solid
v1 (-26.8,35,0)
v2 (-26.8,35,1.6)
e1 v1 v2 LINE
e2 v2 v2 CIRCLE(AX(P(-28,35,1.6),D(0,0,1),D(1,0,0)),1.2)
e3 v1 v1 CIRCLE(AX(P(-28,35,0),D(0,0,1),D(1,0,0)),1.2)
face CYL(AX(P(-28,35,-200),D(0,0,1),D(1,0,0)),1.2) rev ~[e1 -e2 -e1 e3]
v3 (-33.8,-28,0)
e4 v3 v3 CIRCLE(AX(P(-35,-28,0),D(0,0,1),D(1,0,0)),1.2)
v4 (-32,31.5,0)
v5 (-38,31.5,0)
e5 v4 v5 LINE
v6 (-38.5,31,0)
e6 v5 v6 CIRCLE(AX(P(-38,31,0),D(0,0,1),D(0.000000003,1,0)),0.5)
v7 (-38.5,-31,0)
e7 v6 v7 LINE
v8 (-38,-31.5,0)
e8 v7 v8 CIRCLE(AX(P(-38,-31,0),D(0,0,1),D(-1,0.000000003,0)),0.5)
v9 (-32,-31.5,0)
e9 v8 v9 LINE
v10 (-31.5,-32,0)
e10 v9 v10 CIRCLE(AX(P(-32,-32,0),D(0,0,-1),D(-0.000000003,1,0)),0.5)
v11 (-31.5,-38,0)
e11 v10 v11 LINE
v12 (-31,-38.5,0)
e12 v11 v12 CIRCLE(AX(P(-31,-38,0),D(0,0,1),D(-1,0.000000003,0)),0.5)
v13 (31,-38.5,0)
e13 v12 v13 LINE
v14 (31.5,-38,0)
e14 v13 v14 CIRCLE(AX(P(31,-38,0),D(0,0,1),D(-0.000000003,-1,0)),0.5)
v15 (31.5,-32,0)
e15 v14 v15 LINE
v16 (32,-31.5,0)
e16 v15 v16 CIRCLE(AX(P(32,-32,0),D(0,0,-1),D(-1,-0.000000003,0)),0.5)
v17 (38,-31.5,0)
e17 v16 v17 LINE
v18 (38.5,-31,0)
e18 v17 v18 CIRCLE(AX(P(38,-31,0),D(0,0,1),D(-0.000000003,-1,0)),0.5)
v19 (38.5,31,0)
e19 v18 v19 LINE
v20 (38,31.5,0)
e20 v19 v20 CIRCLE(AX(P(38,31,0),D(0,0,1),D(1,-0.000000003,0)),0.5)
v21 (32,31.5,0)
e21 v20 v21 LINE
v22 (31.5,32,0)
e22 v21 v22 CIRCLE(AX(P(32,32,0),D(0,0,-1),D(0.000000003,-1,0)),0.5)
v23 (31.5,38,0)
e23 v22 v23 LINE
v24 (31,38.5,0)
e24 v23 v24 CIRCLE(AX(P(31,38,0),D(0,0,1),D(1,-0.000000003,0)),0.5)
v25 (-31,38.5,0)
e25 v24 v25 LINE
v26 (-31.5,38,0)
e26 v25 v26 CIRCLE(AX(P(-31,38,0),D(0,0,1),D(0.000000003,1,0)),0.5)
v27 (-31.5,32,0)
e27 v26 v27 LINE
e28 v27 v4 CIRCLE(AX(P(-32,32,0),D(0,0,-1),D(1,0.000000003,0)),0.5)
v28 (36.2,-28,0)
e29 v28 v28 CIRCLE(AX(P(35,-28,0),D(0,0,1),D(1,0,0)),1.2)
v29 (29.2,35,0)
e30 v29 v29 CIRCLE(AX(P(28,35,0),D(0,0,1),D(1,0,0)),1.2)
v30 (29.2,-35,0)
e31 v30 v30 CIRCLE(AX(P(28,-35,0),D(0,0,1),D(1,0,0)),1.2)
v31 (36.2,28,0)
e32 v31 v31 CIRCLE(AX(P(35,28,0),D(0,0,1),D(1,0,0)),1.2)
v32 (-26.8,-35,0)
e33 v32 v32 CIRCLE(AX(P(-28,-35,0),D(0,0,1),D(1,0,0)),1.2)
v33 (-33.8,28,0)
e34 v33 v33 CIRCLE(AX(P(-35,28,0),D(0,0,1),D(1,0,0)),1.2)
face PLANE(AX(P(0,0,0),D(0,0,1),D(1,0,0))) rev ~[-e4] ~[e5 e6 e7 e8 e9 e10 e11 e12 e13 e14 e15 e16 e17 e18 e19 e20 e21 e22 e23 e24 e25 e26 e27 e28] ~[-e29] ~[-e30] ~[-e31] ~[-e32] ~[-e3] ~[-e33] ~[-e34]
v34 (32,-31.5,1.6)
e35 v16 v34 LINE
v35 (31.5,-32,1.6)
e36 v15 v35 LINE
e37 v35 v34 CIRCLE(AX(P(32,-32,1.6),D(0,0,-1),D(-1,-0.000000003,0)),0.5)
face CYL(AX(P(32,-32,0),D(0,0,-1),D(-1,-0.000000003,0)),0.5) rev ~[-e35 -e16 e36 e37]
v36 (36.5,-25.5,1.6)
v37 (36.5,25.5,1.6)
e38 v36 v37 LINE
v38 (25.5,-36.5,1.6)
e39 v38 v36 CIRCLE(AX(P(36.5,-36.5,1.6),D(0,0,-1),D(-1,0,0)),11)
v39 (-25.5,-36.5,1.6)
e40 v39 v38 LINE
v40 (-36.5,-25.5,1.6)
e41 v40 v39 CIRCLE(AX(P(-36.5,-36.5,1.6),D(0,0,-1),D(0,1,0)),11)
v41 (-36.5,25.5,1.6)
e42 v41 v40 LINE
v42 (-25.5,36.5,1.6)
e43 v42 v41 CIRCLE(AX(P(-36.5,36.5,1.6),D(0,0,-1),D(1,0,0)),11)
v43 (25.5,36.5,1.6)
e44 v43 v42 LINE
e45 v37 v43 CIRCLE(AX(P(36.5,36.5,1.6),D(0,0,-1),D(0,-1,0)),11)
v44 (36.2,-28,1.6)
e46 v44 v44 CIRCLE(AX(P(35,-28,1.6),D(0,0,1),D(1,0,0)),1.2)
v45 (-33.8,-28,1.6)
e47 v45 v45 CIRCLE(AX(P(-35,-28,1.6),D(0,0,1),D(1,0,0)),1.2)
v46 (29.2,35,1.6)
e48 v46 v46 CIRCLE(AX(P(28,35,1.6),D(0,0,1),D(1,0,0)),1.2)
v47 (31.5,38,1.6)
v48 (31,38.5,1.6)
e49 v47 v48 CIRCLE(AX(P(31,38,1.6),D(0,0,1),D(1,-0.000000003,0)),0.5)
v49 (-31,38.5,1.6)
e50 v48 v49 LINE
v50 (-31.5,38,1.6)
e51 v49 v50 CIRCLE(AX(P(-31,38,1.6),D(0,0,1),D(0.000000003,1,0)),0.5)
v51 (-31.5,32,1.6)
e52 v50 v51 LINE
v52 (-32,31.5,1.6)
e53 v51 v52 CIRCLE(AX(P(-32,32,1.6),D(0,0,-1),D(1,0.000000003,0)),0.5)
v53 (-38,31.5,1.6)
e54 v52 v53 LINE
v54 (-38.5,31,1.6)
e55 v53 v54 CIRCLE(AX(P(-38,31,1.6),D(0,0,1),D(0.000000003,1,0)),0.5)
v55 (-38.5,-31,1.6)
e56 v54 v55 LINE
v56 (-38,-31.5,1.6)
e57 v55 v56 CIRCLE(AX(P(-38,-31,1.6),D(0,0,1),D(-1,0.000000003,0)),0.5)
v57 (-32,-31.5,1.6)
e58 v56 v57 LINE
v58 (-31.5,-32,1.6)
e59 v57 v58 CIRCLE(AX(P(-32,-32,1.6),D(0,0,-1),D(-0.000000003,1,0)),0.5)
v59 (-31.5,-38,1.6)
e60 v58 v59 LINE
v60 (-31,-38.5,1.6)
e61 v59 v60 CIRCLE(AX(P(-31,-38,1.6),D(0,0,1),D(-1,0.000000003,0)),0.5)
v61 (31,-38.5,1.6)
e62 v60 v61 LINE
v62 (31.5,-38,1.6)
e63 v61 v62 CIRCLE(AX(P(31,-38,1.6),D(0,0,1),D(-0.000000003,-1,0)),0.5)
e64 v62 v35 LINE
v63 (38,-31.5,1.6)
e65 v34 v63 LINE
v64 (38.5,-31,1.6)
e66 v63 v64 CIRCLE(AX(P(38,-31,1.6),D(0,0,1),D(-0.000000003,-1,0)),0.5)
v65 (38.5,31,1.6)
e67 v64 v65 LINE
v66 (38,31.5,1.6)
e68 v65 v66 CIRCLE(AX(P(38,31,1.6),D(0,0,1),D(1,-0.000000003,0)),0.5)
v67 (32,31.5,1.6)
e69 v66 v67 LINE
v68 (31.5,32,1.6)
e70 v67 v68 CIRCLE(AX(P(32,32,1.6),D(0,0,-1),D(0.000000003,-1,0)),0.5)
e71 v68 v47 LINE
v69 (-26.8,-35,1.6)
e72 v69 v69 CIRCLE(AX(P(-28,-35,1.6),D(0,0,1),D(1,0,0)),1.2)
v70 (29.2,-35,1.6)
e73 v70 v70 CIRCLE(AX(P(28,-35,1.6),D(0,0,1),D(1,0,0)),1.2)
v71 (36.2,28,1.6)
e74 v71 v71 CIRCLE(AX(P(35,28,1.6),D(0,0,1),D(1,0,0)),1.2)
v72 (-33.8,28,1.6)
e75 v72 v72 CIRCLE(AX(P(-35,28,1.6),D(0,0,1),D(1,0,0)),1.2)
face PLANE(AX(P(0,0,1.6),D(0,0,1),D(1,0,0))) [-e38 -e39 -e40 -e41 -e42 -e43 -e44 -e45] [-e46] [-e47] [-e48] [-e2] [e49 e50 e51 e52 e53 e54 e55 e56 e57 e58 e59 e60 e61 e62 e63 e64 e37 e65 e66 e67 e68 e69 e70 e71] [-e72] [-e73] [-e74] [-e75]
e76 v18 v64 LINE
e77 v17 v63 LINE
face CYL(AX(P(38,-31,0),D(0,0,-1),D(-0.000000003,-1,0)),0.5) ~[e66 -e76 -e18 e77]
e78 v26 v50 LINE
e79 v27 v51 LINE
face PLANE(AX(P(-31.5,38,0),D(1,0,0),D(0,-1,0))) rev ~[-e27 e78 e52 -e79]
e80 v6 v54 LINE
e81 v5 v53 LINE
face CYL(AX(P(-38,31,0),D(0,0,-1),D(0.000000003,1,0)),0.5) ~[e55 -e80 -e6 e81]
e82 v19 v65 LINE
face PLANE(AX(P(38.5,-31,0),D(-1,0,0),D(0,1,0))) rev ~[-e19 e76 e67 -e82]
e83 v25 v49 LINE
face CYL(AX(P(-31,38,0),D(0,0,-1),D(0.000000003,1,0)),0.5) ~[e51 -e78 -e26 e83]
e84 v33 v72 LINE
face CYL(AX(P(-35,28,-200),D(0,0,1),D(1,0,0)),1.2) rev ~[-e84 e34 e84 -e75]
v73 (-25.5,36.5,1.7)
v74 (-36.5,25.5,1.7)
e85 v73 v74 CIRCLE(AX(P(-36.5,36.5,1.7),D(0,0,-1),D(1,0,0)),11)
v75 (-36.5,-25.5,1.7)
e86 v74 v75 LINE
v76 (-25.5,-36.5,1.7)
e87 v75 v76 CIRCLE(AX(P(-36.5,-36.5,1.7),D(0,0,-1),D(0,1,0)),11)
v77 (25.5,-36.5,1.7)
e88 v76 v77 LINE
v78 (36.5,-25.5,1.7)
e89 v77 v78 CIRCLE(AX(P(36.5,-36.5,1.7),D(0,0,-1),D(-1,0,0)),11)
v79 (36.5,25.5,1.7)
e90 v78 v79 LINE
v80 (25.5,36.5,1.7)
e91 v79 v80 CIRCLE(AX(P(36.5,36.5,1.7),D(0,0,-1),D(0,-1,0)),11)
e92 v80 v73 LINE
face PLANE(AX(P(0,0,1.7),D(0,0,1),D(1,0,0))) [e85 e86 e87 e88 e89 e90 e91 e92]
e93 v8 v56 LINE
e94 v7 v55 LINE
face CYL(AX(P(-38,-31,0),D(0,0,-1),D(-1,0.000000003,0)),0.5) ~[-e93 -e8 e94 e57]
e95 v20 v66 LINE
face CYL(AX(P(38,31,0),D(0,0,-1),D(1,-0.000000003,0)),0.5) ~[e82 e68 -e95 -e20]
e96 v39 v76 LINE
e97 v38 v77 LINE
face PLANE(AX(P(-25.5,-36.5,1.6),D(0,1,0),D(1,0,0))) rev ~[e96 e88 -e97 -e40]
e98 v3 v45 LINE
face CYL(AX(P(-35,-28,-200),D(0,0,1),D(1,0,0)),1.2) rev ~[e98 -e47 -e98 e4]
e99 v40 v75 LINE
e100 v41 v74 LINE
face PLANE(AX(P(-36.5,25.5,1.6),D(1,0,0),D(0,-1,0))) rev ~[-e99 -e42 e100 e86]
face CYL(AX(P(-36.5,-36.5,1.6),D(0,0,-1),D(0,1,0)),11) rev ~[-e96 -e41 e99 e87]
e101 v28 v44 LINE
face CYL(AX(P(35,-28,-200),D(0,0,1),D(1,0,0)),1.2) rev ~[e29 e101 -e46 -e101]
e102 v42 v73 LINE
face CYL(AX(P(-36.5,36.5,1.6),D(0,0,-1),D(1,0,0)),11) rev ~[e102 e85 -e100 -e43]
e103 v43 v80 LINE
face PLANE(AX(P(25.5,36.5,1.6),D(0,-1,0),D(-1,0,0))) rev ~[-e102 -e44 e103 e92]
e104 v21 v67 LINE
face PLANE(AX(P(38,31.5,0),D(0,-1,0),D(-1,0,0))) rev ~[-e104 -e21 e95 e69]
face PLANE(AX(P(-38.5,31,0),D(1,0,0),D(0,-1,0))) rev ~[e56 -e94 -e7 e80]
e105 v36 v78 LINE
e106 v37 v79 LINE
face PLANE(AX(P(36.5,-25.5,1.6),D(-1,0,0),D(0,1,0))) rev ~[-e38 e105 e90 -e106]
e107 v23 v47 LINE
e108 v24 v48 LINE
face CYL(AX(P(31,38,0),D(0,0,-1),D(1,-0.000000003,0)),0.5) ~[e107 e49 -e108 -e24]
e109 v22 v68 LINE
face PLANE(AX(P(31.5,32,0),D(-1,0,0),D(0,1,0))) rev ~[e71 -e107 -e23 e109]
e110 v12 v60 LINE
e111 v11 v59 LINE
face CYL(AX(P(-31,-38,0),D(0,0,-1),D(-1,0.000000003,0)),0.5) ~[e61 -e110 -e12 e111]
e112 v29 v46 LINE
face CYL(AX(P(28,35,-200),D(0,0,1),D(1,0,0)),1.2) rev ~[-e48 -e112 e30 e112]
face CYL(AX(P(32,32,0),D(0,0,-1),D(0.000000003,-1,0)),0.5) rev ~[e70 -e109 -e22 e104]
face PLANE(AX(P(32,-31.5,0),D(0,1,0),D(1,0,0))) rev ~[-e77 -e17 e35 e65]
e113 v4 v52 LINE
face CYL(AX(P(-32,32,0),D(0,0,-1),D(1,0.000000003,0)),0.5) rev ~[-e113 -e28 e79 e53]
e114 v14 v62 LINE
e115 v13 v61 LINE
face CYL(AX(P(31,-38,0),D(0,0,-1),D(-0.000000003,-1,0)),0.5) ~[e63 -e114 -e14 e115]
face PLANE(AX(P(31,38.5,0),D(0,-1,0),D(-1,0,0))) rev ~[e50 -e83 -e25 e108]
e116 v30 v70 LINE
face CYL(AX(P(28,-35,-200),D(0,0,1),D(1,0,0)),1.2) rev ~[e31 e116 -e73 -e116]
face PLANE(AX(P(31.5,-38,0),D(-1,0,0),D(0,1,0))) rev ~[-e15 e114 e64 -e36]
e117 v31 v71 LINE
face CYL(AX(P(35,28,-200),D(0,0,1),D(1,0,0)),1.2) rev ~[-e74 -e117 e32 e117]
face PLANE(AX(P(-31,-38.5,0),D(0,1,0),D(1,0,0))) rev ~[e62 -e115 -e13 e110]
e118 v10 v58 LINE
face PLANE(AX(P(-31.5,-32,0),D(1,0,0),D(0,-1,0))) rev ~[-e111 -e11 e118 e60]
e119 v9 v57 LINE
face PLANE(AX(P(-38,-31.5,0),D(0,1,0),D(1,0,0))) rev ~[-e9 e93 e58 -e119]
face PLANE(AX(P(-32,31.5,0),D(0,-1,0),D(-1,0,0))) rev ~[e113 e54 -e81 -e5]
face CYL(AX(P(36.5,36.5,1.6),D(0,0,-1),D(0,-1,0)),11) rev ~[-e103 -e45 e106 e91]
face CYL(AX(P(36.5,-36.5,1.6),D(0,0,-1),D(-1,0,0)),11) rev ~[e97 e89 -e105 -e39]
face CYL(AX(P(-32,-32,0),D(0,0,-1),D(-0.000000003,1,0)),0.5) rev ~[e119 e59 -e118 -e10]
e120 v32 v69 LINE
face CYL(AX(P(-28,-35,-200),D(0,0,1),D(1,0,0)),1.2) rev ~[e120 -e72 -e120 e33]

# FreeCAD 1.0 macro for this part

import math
import FreeCAD as App
import Part
import Sketcher

doc = App.newDocument("Part")
body = doc.addObject("PartDesign::Body", "Body")

# Sketch on XY plane
sketch1 = body.newObject("Sketcher::SketchObject", "Sketch")
sketch1.AttachmentSupport = (doc.getObject("XY_Plane"), [""])
sketch1.MapMode = "FlatFace"
sketch1.addGeometry(Part.LineSegment(App.Vector(-31.5, 38, 0), App.Vector(-31.5, 32, 0)), False)
sketch1.addGeometry(Part.ArcOfCircle(Part.Circle(App.Vector(-32, 32, 0), App.Vector(0, 0, 1), 0.5), math.radians(-90), math.radians(0)), False)
sketch1.addGeometry(Part.LineSegment(App.Vector(-32, 31.5, 0), App.Vector(-38, 31.5, 0)), False)
sketch1.addGeometry(Part.ArcOfCircle(Part.Circle(App.Vector(-38, 31, 0), App.Vector(0, 0, 1), 0.5), math.radians(90), math.radians(180)), False)
sketch1.addGeometry(Part.LineSegment(App.Vector(-38.5, 31, 0), App.Vector(-38.5, -31, 0)), False)
sketch1.addGeometry(Part.ArcOfCircle(Part.Circle(App.Vector(-38, -31, 0), App.Vector(0, 0, 1), 0.5), math.radians(180), math.radians(270)), False)
sketch1.addGeometry(Part.LineSegment(App.Vector(-38, -31.5, 0), App.Vector(-32, -31.5, 0)), False)
sketch1.addGeometry(Part.ArcOfCircle(Part.Circle(App.Vector(-32, -32, 0), App.Vector(0, 0, 1), 0.5), math.radians(0), math.radians(90)), False)
sketch1.addGeometry(Part.LineSegment(App.Vector(-31.5, -32, 0), App.Vector(-31.5, -38, 0)), False)
sketch1.addGeometry(Part.ArcOfCircle(Part.Circle(App.Vector(-31, -38, 0), App.Vector(0, 0, 1), 0.5), math.radians(180), math.radians(270)), False)
sketch1.addGeometry(Part.LineSegment(App.Vector(-31, -38.5, 0), App.Vector(31, -38.5, 0)), False)
sketch1.addGeometry(Part.ArcOfCircle(Part.Circle(App.Vector(31, -38, 0), App.Vector(0, 0, 1), 0.5), math.radians(-90), math.radians(0)), False)
sketch1.addGeometry(Part.LineSegment(App.Vector(31.5, -38, 0), App.Vector(31.5, -32, 0)), False)
sketch1.addGeometry(Part.ArcOfCircle(Part.Circle(App.Vector(32, -32, 0), App.Vector(0, 0, 1), 0.5), math.radians(90), math.radians(180)), False)
sketch1.addGeometry(Part.LineSegment(App.Vector(32, -31.5, 0), App.Vector(38, -31.5, 0)), False)
sketch1.addGeometry(Part.ArcOfCircle(Part.Circle(App.Vector(38, -31, 0), App.Vector(0, 0, 1), 0.5), math.radians(-90), math.radians(0)), False)
sketch1.addGeometry(Part.LineSegment(App.Vector(38.5, -31, 0), App.Vector(38.5, 31, 0)), False)
sketch1.addGeometry(Part.ArcOfCircle(Part.Circle(App.Vector(38, 31, 0), App.Vector(0, 0, 1), 0.5), math.radians(0), math.radians(90)), False)
sketch1.addGeometry(Part.LineSegment(App.Vector(38, 31.5, 0), App.Vector(32, 31.5, 0)), False)
sketch1.addGeometry(Part.ArcOfCircle(Part.Circle(App.Vector(32, 32, 0), App.Vector(0, 0, 1), 0.5), math.radians(180), math.radians(270)), False)
sketch1.addGeometry(Part.LineSegment(App.Vector(31.5, 32, 0), App.Vector(31.5, 38, 0)), False)
sketch1.addGeometry(Part.ArcOfCircle(Part.Circle(App.Vector(31, 38, 0), App.Vector(0, 0, 1), 0.5), math.radians(0), math.radians(90)), False)
sketch1.addGeometry(Part.LineSegment(App.Vector(31, 38.5, 0), App.Vector(-31, 38.5, 0)), False)
sketch1.addGeometry(Part.ArcOfCircle(Part.Circle(App.Vector(-31, 38, 0), App.Vector(0, 0, 1), 0.5), math.radians(90), math.radians(180)), False)
sketch1.addConstraint(Sketcher.Constraint("Tangent", 0, 2, 1, 2))
sketch1.addConstraint(Sketcher.Constraint("Tangent", 1, 1, 2, 1))
sketch1.addConstraint(Sketcher.Constraint("Tangent", 2, 2, 3, 1))
sketch1.addConstraint(Sketcher.Constraint("Tangent", 3, 2, 4, 1))
sketch1.addConstraint(Sketcher.Constraint("Tangent", 4, 2, 5, 1))
sketch1.addConstraint(Sketcher.Constraint("Tangent", 5, 2, 6, 1))
sketch1.addConstraint(Sketcher.Constraint("Tangent", 6, 2, 7, 2))
sketch1.addConstraint(Sketcher.Constraint("Tangent", 7, 1, 8, 1))
sketch1.addConstraint(Sketcher.Constraint("Tangent", 8, 2, 9, 1))
sketch1.addConstraint(Sketcher.Constraint("Tangent", 9, 2, 10, 1))
sketch1.addConstraint(Sketcher.Constraint("Tangent", 10, 2, 11, 1))
sketch1.addConstraint(Sketcher.Constraint("Tangent", 11, 2, 12, 1))
sketch1.addConstraint(Sketcher.Constraint("Tangent", 12, 2, 13, 2))
sketch1.addConstraint(Sketcher.Constraint("Tangent", 13, 1, 14, 1))
sketch1.addConstraint(Sketcher.Constraint("Tangent", 14, 2, 15, 1))
sketch1.addConstraint(Sketcher.Constraint("Tangent", 15, 2, 16, 1))
sketch1.addConstraint(Sketcher.Constraint("Tangent", 16, 2, 17, 1))
sketch1.addConstraint(Sketcher.Constraint("Tangent", 17, 2, 18, 1))
sketch1.addConstraint(Sketcher.Constraint("Tangent", 18, 2, 19, 2))
sketch1.addConstraint(Sketcher.Constraint("Tangent", 19, 1, 20, 1))
sketch1.addConstraint(Sketcher.Constraint("Tangent", 20, 2, 21, 1))
sketch1.addConstraint(Sketcher.Constraint("Tangent", 21, 2, 22, 1))
sketch1.addConstraint(Sketcher.Constraint("Tangent", 22, 2, 23, 1))
sketch1.addConstraint(Sketcher.Constraint("Tangent", 23, 2, 0, 1))
sketch1.addConstraint(Sketcher.Constraint("Vertical", 0))
sketch1.addConstraint(Sketcher.Constraint("Horizontal", 2))
sketch1.addConstraint(Sketcher.Constraint("Vertical", 4))
sketch1.addConstraint(Sketcher.Constraint("Horizontal", 6))
sketch1.addConstraint(Sketcher.Constraint("Vertical", 8))
sketch1.addConstraint(Sketcher.Constraint("Horizontal", 10))
sketch1.addConstraint(Sketcher.Constraint("Vertical", 12))
sketch1.addConstraint(Sketcher.Constraint("Horizontal", 14))
sketch1.addConstraint(Sketcher.Constraint("Vertical", 16))
sketch1.addConstraint(Sketcher.Constraint("Horizontal", 18))
sketch1.addConstraint(Sketcher.Constraint("Vertical", 20))
sketch1.addConstraint(Sketcher.Constraint("Horizontal", 22))
sketch1.addConstraint(Sketcher.Constraint("Equal", 1, 3))
sketch1.addConstraint(Sketcher.Constraint("Equal", 3, 5))
sketch1.addConstraint(Sketcher.Constraint("Equal", 5, 7))
sketch1.addConstraint(Sketcher.Constraint("Equal", 7, 9))
sketch1.addConstraint(Sketcher.Constraint("Equal", 9, 11))
sketch1.addConstraint(Sketcher.Constraint("Equal", 11, 13))
sketch1.addConstraint(Sketcher.Constraint("Equal", 13, 15))
sketch1.addConstraint(Sketcher.Constraint("Equal", 15, 17))
sketch1.addConstraint(Sketcher.Constraint("Equal", 17, 19))
sketch1.addConstraint(Sketcher.Constraint("Equal", 19, 21))
sketch1.addConstraint(Sketcher.Constraint("Equal", 21, 23))
sketch1.addConstraint(Sketcher.Constraint("Symmetric", 1, 3, 13, 3, -1, 1))
sketch1.addConstraint(Sketcher.Constraint("Symmetric", 5, 3, 17, 3, -1, 1))
sketch1.addConstraint(Sketcher.Constraint("Symmetric", 9, 3, 21, 3, -1, 1))
sketch1.addConstraint(Sketcher.Constraint("Symmetric", 7, 3, 13, 3, -2))
sketch1.addConstraint(Sketcher.Constraint("Equal", 18, 0))
sketch1.addConstraint(Sketcher.Constraint("Equal", 22, 4))
sketch1.addConstraint(Sketcher.Constraint("Radius", 1, 0.5))
sketch1.addConstraint(Sketcher.Constraint("DistanceX", 2, 2, 2, 1, 6.0))
sketch1.addConstraint(Sketcher.Constraint("DistanceX", 10, 1, 10, 2, 62.0))
pad1 = body.newObject("PartDesign::Pad", "Pad")
pad1.Profile = sketch1
pad1.Length = 1.6

# Sketch on XY plane
sketch2 = body.newObject("Sketcher::SketchObject", "Sketch001")
sketch2.AttachmentSupport = (doc.getObject("XY_Plane"), [""])
sketch2.MapMode = "FlatFace"
sketch2.AttachmentOffset = App.Placement(App.Vector(0, 0, 1.6), App.Rotation())
sketch2.addGeometry(Part.LineSegment(App.Vector(-26, -36, 0), App.Vector(26, -36, 0)), False)
sketch2.addGeometry(Part.ArcOfCircle(Part.Circle(App.Vector(36, -36, 0), App.Vector(0, 0, 1), 11), math.radians(90), math.radians(180)), False)
sketch2.addGeometry(Part.LineSegment(App.Vector(36, -26, 0), App.Vector(36, 26, 0)), False)
sketch2.addGeometry(Part.ArcOfCircle(Part.Circle(App.Vector(36, 36, 0), App.Vector(0, 0, 1), 11), math.radians(180), math.radians(270)), False)
sketch2.addGeometry(Part.LineSegment(App.Vector(26, 36, 0), App.Vector(-26, 36, 0)), False)
sketch2.addGeometry(Part.ArcOfCircle(Part.Circle(App.Vector(-36, 36, 0), App.Vector(0, 0, 1), 11), math.radians(-90), math.radians(0)), False)
sketch2.addGeometry(Part.LineSegment(App.Vector(-36, 26, 0), App.Vector(-36, -26, 0)), False)
sketch2.addGeometry(Part.ArcOfCircle(Part.Circle(App.Vector(-36, -36, 0), App.Vector(0, 0, 1), 11), math.radians(0), math.radians(90)), False)
sketch2.addConstraint(Sketcher.Constraint("Coincident", 0, 2, 1, 2))
sketch2.addConstraint(Sketcher.Constraint("Coincident", 1, 1, 2, 1))
sketch2.addConstraint(Sketcher.Constraint("Coincident", 2, 2, 3, 2))
sketch2.addConstraint(Sketcher.Constraint("Coincident", 3, 1, 4, 1))
sketch2.addConstraint(Sketcher.Constraint("Coincident", 4, 2, 5, 2))
sketch2.addConstraint(Sketcher.Constraint("Coincident", 5, 1, 6, 1))
sketch2.addConstraint(Sketcher.Constraint("Coincident", 6, 2, 7, 2))
sketch2.addConstraint(Sketcher.Constraint("Coincident", 7, 1, 0, 1))
sketch2.addConstraint(Sketcher.Constraint("Horizontal", 0))
sketch2.addConstraint(Sketcher.Constraint("Vertical", 2))
sketch2.addConstraint(Sketcher.Constraint("Horizontal", 4))
sketch2.addConstraint(Sketcher.Constraint("Vertical", 6))
sketch2.addConstraint(Sketcher.Constraint("Equal", 1, 3))
sketch2.addConstraint(Sketcher.Constraint("Equal", 3, 5))
sketch2.addConstraint(Sketcher.Constraint("Equal", 5, 7))
sketch2.addConstraint(Sketcher.Constraint("Symmetric", 1, 3, 5, 3, -1, 1))
sketch2.addConstraint(Sketcher.Constraint("Symmetric", 3, 3, 7, 3, -1, 1))
sketch2.addConstraint(Sketcher.Constraint("Symmetric", 3, 3, 5, 3, -2))
sketch2.addConstraint(Sketcher.Constraint("Horizontal", 7, 3, 0, 2))
sketch2.addConstraint(Sketcher.Constraint("Horizontal", 5, 3, 3, 1))
sketch2.addConstraint(Sketcher.Constraint("Vertical", 3, 3, 1, 1))
sketch2.addConstraint(Sketcher.Constraint("Vertical", 7, 3, 5, 1))
sketch2.addConstraint(Sketcher.Constraint("Equal", 4, 2))
sketch2.addConstraint(Sketcher.Constraint("Radius", 1, 11.0))
sketch2.addConstraint(Sketcher.Constraint("DistanceX", 0, 1, 0, 2, 51.0))
pad2 = body.newObject("PartDesign::Pad", "Pad001")
pad2.Profile = sketch2
pad2.Length = 0.1

# Sketch on XY plane
sketch3 = body.newObject("Sketcher::SketchObject", "Sketch002")
sketch3.AttachmentSupport = (doc.getObject("XY_Plane"), [""])
sketch3.MapMode = "FlatFace"
sketch3.addGeometry(Part.Circle(App.Vector(28, 35, 0), App.Vector(0, 0, 1), 1.2), False)
sketch3.addGeometry(Part.Circle(App.Vector(-28, 35, 0), App.Vector(0, 0, 1), 1.2), False)
sketch3.addGeometry(Part.Circle(App.Vector(28, -35, 0), App.Vector(0, 0, 1), 1.2), False)
sketch3.addGeometry(Part.Circle(App.Vector(-28, -35, 0), App.Vector(0, 0, 1), 1.2), False)
sketch3.addGeometry(Part.Circle(App.Vector(-35, 28, 0), App.Vector(0, 0, 1), 1.2), False)
sketch3.addGeometry(Part.Circle(App.Vector(-35, -28, 0), App.Vector(0, 0, 1), 1.2), False)
sketch3.addGeometry(Part.Circle(App.Vector(35, -28, 0), App.Vector(0, 0, 1), 1.2), False)
sketch3.addGeometry(Part.Circle(App.Vector(35, 28, 0), App.Vector(0, 0, 1), 1.2), False)
sketch3.addConstraint(Sketcher.Constraint("Equal", 0, 1))
sketch3.addConstraint(Sketcher.Constraint("Equal", 1, 2))
sketch3.addConstraint(Sketcher.Constraint("Equal", 2, 3))
sketch3.addConstraint(Sketcher.Constraint("Equal", 3, 4))
sketch3.addConstraint(Sketcher.Constraint("Equal", 4, 5))
sketch3.addConstraint(Sketcher.Constraint("Equal", 5, 6))
sketch3.addConstraint(Sketcher.Constraint("Equal", 6, 7))
sketch3.addConstraint(Sketcher.Constraint("Symmetric", 1, 3, 2, 3, -1, 1))
sketch3.addConstraint(Sketcher.Constraint("Symmetric", 0, 3, 3, 3, -1, 1))
sketch3.addConstraint(Sketcher.Constraint("Symmetric", 4, 3, 6, 3, -1, 1))
sketch3.addConstraint(Sketcher.Constraint("Symmetric", 5, 3, 7, 3, -1, 1))
sketch3.addConstraint(Sketcher.Constraint("Symmetric", 0, 3, 1, 3, -2))
sketch3.addConstraint(Sketcher.Constraint("Symmetric", 5, 3, 6, 3, -2))
sketch3.addConstraint(Sketcher.Constraint("Diameter", 0, 2.4))
sketch3.addConstraint(Sketcher.Constraint("DistanceX", -1, 1, 0, 3, 28.0))
sketch3.addConstraint(Sketcher.Constraint("DistanceY", -1, 1, 0, 3, 35.0))
sketch3.addConstraint(Sketcher.Constraint("DistanceX", 4, 3, -1, 1, 35.0))
sketch3.addConstraint(Sketcher.Constraint("DistanceY", -1, 1, 4, 3, 28.0))
doc.recompute()
hole = body.newObject("PartDesign::Hole", "Hole")
hole.Profile = sketch3
hole.ThreadType = "None"
hole.Diameter = 2.4
hole.DepthType = "Dimension"
hole.Depth = 200
hole.DrillPoint = "Angled"
hole.DrillPointAngle = 118
hole.Reversed = True

doc.recompute()
